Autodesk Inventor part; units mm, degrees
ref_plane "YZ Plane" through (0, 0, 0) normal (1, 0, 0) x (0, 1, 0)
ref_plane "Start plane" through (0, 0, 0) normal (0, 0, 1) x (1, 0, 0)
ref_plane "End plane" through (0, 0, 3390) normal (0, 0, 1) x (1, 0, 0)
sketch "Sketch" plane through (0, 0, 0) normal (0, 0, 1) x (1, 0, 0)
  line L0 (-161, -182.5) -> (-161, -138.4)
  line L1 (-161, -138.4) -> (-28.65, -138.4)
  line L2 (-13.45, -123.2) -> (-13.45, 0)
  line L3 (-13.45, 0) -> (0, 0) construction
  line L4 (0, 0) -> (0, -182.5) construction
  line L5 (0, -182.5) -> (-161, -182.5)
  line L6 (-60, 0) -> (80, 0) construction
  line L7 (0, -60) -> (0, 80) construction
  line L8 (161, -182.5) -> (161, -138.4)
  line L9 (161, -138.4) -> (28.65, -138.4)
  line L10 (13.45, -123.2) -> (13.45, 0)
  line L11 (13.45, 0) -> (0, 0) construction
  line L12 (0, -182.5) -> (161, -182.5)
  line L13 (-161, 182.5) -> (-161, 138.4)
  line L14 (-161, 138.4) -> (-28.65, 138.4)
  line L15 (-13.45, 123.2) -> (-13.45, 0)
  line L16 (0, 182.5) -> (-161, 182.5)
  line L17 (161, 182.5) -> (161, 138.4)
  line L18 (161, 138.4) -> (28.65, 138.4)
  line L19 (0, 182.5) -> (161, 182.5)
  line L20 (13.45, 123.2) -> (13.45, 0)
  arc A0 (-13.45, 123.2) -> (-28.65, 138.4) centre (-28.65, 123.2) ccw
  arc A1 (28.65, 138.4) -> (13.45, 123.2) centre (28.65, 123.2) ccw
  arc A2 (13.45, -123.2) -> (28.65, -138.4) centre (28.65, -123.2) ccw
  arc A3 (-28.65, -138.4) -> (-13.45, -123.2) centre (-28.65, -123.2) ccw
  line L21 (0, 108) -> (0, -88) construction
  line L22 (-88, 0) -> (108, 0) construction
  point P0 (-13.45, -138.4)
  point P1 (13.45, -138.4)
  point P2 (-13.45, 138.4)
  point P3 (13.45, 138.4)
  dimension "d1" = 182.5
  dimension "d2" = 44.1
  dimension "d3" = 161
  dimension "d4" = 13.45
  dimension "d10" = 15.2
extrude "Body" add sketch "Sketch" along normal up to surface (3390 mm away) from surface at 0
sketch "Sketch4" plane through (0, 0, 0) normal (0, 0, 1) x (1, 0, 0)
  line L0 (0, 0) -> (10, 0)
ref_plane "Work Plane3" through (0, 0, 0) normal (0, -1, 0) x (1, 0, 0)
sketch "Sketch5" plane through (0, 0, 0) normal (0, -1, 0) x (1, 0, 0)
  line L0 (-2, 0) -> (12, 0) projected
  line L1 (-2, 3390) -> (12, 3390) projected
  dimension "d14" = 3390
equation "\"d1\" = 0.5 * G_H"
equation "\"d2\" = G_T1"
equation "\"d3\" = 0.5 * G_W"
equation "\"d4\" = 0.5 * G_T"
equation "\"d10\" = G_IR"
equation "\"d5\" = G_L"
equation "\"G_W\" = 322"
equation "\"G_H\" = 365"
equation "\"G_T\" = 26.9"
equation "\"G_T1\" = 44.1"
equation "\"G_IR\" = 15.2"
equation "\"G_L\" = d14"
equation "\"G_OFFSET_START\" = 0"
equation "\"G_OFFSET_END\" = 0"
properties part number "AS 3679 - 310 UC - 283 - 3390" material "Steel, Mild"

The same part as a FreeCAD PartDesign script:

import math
import FreeCAD as App
import Part
import Sketcher

doc = App.newDocument("Part")
body = doc.addObject("PartDesign::Body", "Body")

# Sketch on XY plane
sketch1 = body.newObject("Sketcher::SketchObject", "Sketch")
sketch1.AttachmentSupport = (doc.getObject("XY_Plane"), [""])
sketch1.MapMode = "FlatFace"
sketch1.addGeometry([
    Part.LineSegment(App.Vector(-161, -138, 0), App.Vector(-161, -182, 0)),  # 0
    Part.LineSegment(App.Vector(-161, -182, 0), App.Vector(161, -182, 0)),  # 1
    Part.LineSegment(App.Vector(161, -182, 0), App.Vector(161, -138, 0)),  # 2
    Part.LineSegment(App.Vector(161, -138, 0), App.Vector(29, -138, 0)),  # 3
    Part.ArcOfCircle(Part.Circle(App.Vector(29, -123, 0), App.Vector(0, 0, 1), 15), math.radians(180), math.radians(270)),  # 4
    Part.LineSegment(App.Vector(13, -123, 0), App.Vector(13, 123, 0)),  # 5
    Part.ArcOfCircle(Part.Circle(App.Vector(29, 123, 0), App.Vector(0, 0, 1), 15), math.radians(90), math.radians(180)),  # 6
    Part.LineSegment(App.Vector(29, 138, 0), App.Vector(161, 138, 0)),  # 7
    Part.LineSegment(App.Vector(161, 138, 0), App.Vector(161, 182, 0)),  # 8
    Part.LineSegment(App.Vector(161, 182, 0), App.Vector(-161, 182, 0)),  # 9
    Part.LineSegment(App.Vector(-161, 182, 0), App.Vector(-161, 138, 0)),  # 10
    Part.LineSegment(App.Vector(-161, 138, 0), App.Vector(-29, 138, 0)),  # 11
    Part.ArcOfCircle(Part.Circle(App.Vector(-29, 123, 0), App.Vector(0, 0, 1), 15), math.radians(0), math.radians(90)),  # 12
    Part.LineSegment(App.Vector(-13, 123, 0), App.Vector(-13, -123, 0)),  # 13
    Part.ArcOfCircle(Part.Circle(App.Vector(-29, -123, 0), App.Vector(0, 0, 1), 15), math.radians(-90), math.radians(0)),  # 14
    Part.LineSegment(App.Vector(-29, -138, 0), App.Vector(-161, -138, 0)),  # 15
], False)
sketch1.addConstraint([
    Sketcher.Constraint("Coincident", 0, 2, 1, 1),
    Sketcher.Constraint("Coincident", 1, 2, 2, 1),
    Sketcher.Constraint("Coincident", 2, 2, 3, 1),
    Sketcher.Constraint("Tangent", 3, 2, 4, 2),
    Sketcher.Constraint("Tangent", 4, 1, 5, 1),
    Sketcher.Constraint("Tangent", 5, 2, 6, 2),
    Sketcher.Constraint("Tangent", 6, 1, 7, 1),
    Sketcher.Constraint("Coincident", 7, 2, 8, 1),
    Sketcher.Constraint("Coincident", 8, 2, 9, 1),
    Sketcher.Constraint("Coincident", 9, 2, 10, 1),
    Sketcher.Constraint("Coincident", 10, 2, 11, 1),
    Sketcher.Constraint("Tangent", 11, 2, 12, 2),
    Sketcher.Constraint("Tangent", 12, 1, 13, 1),
    Sketcher.Constraint("Tangent", 13, 2, 14, 2),
    Sketcher.Constraint("Tangent", 14, 1, 15, 1),
    Sketcher.Constraint("Coincident", 15, 2, 0, 1),
    Sketcher.Constraint("Vertical", 0),
    Sketcher.Constraint("Horizontal", 1),
    Sketcher.Constraint("Vertical", 2),
    Sketcher.Constraint("Horizontal", 3),
    Sketcher.Constraint("Vertical", 5),
    Sketcher.Constraint("Horizontal", 7),
    Sketcher.Constraint("Vertical", 8),
    Sketcher.Constraint("Horizontal", 9),
    Sketcher.Constraint("Vertical", 10),
    Sketcher.Constraint("Horizontal", 11),
    Sketcher.Constraint("Vertical", 13),
    Sketcher.Constraint("Horizontal", 15),
    Sketcher.Constraint("Equal", 4, 6),
    Sketcher.Constraint("Equal", 6, 12),
    Sketcher.Constraint("Equal", 12, 14),
    Sketcher.Constraint("Symmetric", 4, 3, 12, 3, -1, 1),
    Sketcher.Constraint("Symmetric", 0, 2, 8, 2, -1, 1),
    Sketcher.Constraint("Symmetric", 7, 2, 10, 2, -2),
    Sketcher.Constraint("Symmetric", 2, 2, 15, 2, -2),
    Sketcher.Constraint("Radius", 4, 15.2),
    Sketcher.Constraint("DistanceY", 0, 2, 0, 1, 44.1),
    Sketcher.Constraint("DistanceX", 0, 2, -1, 1, 161.0),
    Sketcher.Constraint("DistanceY", 0, 2, -1, 1, 182.5),
    Sketcher.Constraint("DistanceX", -1, 1, 4, 1, 13.45),
])
pad1 = body.newObject("PartDesign::Pad", "Pad")
pad1.Profile = sketch1
pad1.Length = 3390

doc.recompute()
